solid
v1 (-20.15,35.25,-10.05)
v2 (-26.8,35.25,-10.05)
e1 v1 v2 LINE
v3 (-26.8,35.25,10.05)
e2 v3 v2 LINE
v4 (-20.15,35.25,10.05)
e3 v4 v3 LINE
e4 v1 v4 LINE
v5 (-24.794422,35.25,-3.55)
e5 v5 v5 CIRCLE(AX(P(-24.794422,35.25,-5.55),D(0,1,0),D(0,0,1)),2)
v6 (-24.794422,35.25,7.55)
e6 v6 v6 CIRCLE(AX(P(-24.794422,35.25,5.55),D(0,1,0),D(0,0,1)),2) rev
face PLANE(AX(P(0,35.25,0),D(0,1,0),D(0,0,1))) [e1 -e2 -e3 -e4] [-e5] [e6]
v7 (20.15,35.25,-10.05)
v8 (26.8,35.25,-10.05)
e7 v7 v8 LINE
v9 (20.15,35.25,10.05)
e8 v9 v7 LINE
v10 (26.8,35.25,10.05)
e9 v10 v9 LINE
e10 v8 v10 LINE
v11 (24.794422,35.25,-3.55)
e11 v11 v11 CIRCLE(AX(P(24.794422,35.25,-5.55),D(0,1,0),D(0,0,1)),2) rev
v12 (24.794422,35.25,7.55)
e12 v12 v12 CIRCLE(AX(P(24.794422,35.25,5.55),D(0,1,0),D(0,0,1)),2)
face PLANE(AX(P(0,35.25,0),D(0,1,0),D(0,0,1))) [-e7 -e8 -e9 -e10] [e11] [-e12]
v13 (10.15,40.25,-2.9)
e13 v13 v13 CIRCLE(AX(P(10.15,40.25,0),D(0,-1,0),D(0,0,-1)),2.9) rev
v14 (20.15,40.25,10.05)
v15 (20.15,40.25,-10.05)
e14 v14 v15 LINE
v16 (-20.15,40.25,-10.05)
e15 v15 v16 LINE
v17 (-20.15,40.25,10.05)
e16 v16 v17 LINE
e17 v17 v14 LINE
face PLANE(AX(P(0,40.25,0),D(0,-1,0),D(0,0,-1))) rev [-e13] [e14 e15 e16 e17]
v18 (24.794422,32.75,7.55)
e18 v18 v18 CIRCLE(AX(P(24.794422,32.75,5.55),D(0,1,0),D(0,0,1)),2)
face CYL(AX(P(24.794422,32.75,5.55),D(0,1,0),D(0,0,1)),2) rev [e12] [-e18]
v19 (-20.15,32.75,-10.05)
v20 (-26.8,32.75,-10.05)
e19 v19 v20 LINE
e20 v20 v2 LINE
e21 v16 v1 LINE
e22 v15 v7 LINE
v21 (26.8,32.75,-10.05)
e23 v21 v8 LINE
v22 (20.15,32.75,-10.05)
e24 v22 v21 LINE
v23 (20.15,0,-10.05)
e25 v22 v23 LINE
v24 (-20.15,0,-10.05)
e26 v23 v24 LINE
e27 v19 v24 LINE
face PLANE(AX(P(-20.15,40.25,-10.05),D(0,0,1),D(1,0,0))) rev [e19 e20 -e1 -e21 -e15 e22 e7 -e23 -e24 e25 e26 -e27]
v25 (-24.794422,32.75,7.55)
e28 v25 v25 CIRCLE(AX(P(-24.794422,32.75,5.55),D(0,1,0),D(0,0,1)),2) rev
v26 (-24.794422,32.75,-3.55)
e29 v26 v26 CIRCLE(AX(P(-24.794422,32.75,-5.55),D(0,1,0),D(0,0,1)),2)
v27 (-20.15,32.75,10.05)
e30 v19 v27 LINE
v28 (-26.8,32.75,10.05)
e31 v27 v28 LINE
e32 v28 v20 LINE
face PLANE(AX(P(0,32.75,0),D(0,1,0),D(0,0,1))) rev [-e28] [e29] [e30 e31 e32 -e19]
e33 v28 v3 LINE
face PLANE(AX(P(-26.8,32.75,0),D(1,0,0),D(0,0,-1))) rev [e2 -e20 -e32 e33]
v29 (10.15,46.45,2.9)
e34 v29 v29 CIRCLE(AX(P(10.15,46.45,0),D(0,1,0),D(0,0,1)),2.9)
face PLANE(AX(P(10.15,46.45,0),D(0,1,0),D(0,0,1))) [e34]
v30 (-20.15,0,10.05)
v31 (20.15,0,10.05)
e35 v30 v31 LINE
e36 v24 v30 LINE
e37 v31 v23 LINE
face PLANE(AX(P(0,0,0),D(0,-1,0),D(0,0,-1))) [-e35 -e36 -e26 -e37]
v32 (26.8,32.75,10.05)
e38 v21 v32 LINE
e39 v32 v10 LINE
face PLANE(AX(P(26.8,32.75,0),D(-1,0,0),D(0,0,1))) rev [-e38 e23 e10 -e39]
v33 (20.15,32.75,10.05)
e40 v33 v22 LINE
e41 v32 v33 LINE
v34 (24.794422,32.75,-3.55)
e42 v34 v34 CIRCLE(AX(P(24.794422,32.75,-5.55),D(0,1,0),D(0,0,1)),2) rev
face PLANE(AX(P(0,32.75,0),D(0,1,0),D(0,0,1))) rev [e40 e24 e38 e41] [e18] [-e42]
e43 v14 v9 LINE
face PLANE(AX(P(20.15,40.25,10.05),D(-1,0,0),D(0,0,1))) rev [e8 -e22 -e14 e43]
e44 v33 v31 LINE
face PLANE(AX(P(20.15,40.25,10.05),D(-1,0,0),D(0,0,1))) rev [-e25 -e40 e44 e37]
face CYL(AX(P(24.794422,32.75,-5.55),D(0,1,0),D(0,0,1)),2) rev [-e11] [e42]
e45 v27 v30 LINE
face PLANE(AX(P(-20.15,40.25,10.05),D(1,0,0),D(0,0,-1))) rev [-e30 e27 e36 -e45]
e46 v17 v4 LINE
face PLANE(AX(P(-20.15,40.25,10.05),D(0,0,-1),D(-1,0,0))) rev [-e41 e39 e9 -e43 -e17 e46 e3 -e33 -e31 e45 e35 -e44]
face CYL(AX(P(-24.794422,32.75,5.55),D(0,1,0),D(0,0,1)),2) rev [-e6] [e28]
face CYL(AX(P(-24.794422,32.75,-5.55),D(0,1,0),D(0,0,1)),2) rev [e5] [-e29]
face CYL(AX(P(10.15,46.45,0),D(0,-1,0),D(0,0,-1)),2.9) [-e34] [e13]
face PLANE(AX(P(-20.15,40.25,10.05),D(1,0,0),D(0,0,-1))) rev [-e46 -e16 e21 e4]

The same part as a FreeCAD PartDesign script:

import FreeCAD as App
import Part
import Sketcher
Q = App.Units.Quantity


def add_polygon(sketch, points):
    """Adds a closed chain of lines whose ends are joined by coincident constraints."""
    first, n = sketch.GeometryCount, len(points)
    for a, b in zip(points, points[1:] + points[:1]):
        sketch.addGeometry(Part.LineSegment(App.Vector(*a, 0), App.Vector(*b, 0)), False)
    for i in range(n):
        sketch.addConstraint(Sketcher.Constraint("Coincident", first + i, 2, first + (i + 1) % n, 1))

doc = App.newDocument("Part")
params = doc.addObject("Spreadsheet::Sheet", "Params")
for row, (alias, value) in enumerate([
    ("sketch1_width", "40.3 mm"),
    ("sketch1_height", "20.1 mm"),
    ("pad1_length", "40.25 mm"),
    ("sketch2_diameter", "5.8 mm"),
    ("pad2_length", "6.2 mm"),
    ("sketch3_diameter", "4 mm"),
    ("sketch3_height", "20.1 mm"),
    ("sketch3_width", "6.65 mm"),
    ("pad3_length", "2.5 mm"),
], start=1):
    params.set(f"A{row}", alias)
    params.set(f"B{row}", "=" + value)
    params.setAlias(f"B{row}", alias)

body = doc.addObject("PartDesign::Body", "Body")

sketch1 = doc.addObject("Sketcher::SketchObject", "Sketch")
body.addObject(sketch1)
sketch1.AttachmentSupport = (doc.XZ_Plane, [""])
sketch1.MapMode = "FlatFace"
add_polygon(sketch1, [(-20, -10), (-20, 10), (20, 10), (20, -10)])
sketch1.addConstraint(Sketcher.Constraint("Vertical", 0))
sketch1.addConstraint(Sketcher.Constraint("Horizontal", 1))
sketch1.addConstraint(Sketcher.Constraint("Vertical", 2))
sketch1.addConstraint(Sketcher.Constraint("Horizontal", 3))
sketch1.addConstraint(Sketcher.Constraint("Symmetric", 0, 2, 2, 2, -1, 1))
sketch1.addConstraint(Sketcher.Constraint("DistanceX", 1, 1, 1, 2, Q("40.3 mm")))
sketch1.addConstraint(Sketcher.Constraint("DistanceY", 0, 1, 0, 2, Q("20.1 mm")))
sketch1.setExpression("Constraints[9]", "Params.sketch1_width")
sketch1.setExpression("Constraints[10]", "Params.sketch1_height")
pad1 = doc.addObject("PartDesign::Pad", "Pad")
body.addObject(pad1)
pad1.Profile = sketch1
pad1.setExpression("Length", "Params.pad1_length")
pad1.Reversed = True

sketch2 = doc.addObject("Sketcher::SketchObject", "Sketch001")
body.addObject(sketch2)
sketch2.AttachmentSupport = (doc.XZ_Plane, [""])
sketch2.MapMode = "FlatFace"
sketch2.AttachmentOffset = App.Placement(App.Vector(0, 0, -40.25), App.Rotation())
sketch2.addGeometry(Part.Circle(App.Vector(10.2, 0, 0), App.Vector(0, 0, 1), 2.9), False)
sketch2.addConstraint(Sketcher.Constraint("PointOnObject", 0, 3, -1))
sketch2.addConstraint(Sketcher.Constraint("Diameter", 0, Q("5.8 mm")))
sketch2.addConstraint(Sketcher.Constraint("DistanceX", -1, 1, 0, 3, Q("10.15 mm")))
sketch2.setExpression("Constraints[1]", "Params.sketch2_diameter")
pad2 = doc.addObject("PartDesign::Pad", "Pad001")
body.addObject(pad2)
pad2.Profile = sketch2
pad2.setExpression("Length", "Params.pad2_length")
pad2.Reversed = True

sketch3 = doc.addObject("Sketcher::SketchObject", "Sketch002")
body.addObject(sketch3)
sketch3.AttachmentSupport = (doc.XZ_Plane, [""])
sketch3.MapMode = "FlatFace"
sketch3.AttachmentOffset = App.Placement(App.Vector(0, 0, -35.25), App.Rotation())
add_polygon(sketch3, [(-26.8, -10.1), (-26.8, 10.1), (-20.1, 10.1), (-20.1, -10.1)])
sketch3.addGeometry(Part.Circle(App.Vector(-24.8, 5.5, 0), App.Vector(0, 0, 1), 2), False)
sketch3.addGeometry(Part.Circle(App.Vector(-24.8, -5.5, 0), App.Vector(0, 0, 1), 2), False)
add_polygon(sketch3, [(20.1, -10.1), (20.1, 10.1), (26.8, 10.1), (26.8, -10.1)])
sketch3.addGeometry(Part.Circle(App.Vector(24.8, 5.5, 0), App.Vector(0, 0, 1), 2), False)
sketch3.addGeometry(Part.Circle(App.Vector(24.8, -5.5, 0), App.Vector(0, 0, 1), 2), False)
sketch3.addConstraint(Sketcher.Constraint("Vertical", 0))
sketch3.addConstraint(Sketcher.Constraint("Horizontal", 1))
sketch3.addConstraint(Sketcher.Constraint("Vertical", 2))
sketch3.addConstraint(Sketcher.Constraint("Horizontal", 3))
sketch3.addConstraint(Sketcher.Constraint("Vertical", 6))
sketch3.addConstraint(Sketcher.Constraint("Horizontal", 7))
sketch3.addConstraint(Sketcher.Constraint("Vertical", 8))
sketch3.addConstraint(Sketcher.Constraint("Horizontal", 9))
sketch3.addConstraint(Sketcher.Constraint("Equal", 4, 5))
sketch3.addConstraint(Sketcher.Constraint("Equal", 5, 10))
sketch3.addConstraint(Sketcher.Constraint("Equal", 10, 11))
sketch3.addConstraint(Sketcher.Constraint("Symmetric", 5, 3, 10, 3, -1, 1))
sketch3.addConstraint(Sketcher.Constraint("Symmetric", 4, 3, 11, 3, -1, 1))
sketch3.addConstraint(Sketcher.Constraint("Symmetric", 2, 2, 6, 2, -1, 1))
sketch3.addConstraint(Sketcher.Constraint("Symmetric", 0, 2, 8, 2, -1, 1))
sketch3.addConstraint(Sketcher.Constraint("Symmetric", 4, 3, 10, 3, -2))
sketch3.addConstraint(Sketcher.Constraint("Horizontal", 1, 2, 6, 2))
sketch3.addConstraint(Sketcher.Constraint("Diameter", 4, Q("4 mm")))
sketch3.addConstraint(Sketcher.Constraint("DistanceY", 0, 1, 0, 2, Q("20.1 mm")))
sketch3.addConstraint(Sketcher.Constraint("DistanceX", 1, 1, 1, 2, Q("6.65 mm")))
sketch3.addConstraint(Sketcher.Constraint("DistanceX", 0, 2, -1, 1, Q("26.8 mm")))
sketch3.addConstraint(Sketcher.Constraint("DistanceY", 5, 3, 4, 3, Q("11.1 mm")))
sketch3.addConstraint(Sketcher.Constraint("DistanceX", 4, 3, -1, 1, Q("24.794422 mm")))
sketch3.setExpression("Constraints[25]", "Params.sketch3_diameter")
sketch3.setExpression("Constraints[26]", "Params.sketch3_height")
sketch3.setExpression("Constraints[27]", "Params.sketch3_width")
pad3 = doc.addObject("PartDesign::Pad", "Pad002")
body.addObject(pad3)
pad3.Profile = sketch3
pad3.setExpression("Length", "Params.pad3_length")

doc.recompute()
